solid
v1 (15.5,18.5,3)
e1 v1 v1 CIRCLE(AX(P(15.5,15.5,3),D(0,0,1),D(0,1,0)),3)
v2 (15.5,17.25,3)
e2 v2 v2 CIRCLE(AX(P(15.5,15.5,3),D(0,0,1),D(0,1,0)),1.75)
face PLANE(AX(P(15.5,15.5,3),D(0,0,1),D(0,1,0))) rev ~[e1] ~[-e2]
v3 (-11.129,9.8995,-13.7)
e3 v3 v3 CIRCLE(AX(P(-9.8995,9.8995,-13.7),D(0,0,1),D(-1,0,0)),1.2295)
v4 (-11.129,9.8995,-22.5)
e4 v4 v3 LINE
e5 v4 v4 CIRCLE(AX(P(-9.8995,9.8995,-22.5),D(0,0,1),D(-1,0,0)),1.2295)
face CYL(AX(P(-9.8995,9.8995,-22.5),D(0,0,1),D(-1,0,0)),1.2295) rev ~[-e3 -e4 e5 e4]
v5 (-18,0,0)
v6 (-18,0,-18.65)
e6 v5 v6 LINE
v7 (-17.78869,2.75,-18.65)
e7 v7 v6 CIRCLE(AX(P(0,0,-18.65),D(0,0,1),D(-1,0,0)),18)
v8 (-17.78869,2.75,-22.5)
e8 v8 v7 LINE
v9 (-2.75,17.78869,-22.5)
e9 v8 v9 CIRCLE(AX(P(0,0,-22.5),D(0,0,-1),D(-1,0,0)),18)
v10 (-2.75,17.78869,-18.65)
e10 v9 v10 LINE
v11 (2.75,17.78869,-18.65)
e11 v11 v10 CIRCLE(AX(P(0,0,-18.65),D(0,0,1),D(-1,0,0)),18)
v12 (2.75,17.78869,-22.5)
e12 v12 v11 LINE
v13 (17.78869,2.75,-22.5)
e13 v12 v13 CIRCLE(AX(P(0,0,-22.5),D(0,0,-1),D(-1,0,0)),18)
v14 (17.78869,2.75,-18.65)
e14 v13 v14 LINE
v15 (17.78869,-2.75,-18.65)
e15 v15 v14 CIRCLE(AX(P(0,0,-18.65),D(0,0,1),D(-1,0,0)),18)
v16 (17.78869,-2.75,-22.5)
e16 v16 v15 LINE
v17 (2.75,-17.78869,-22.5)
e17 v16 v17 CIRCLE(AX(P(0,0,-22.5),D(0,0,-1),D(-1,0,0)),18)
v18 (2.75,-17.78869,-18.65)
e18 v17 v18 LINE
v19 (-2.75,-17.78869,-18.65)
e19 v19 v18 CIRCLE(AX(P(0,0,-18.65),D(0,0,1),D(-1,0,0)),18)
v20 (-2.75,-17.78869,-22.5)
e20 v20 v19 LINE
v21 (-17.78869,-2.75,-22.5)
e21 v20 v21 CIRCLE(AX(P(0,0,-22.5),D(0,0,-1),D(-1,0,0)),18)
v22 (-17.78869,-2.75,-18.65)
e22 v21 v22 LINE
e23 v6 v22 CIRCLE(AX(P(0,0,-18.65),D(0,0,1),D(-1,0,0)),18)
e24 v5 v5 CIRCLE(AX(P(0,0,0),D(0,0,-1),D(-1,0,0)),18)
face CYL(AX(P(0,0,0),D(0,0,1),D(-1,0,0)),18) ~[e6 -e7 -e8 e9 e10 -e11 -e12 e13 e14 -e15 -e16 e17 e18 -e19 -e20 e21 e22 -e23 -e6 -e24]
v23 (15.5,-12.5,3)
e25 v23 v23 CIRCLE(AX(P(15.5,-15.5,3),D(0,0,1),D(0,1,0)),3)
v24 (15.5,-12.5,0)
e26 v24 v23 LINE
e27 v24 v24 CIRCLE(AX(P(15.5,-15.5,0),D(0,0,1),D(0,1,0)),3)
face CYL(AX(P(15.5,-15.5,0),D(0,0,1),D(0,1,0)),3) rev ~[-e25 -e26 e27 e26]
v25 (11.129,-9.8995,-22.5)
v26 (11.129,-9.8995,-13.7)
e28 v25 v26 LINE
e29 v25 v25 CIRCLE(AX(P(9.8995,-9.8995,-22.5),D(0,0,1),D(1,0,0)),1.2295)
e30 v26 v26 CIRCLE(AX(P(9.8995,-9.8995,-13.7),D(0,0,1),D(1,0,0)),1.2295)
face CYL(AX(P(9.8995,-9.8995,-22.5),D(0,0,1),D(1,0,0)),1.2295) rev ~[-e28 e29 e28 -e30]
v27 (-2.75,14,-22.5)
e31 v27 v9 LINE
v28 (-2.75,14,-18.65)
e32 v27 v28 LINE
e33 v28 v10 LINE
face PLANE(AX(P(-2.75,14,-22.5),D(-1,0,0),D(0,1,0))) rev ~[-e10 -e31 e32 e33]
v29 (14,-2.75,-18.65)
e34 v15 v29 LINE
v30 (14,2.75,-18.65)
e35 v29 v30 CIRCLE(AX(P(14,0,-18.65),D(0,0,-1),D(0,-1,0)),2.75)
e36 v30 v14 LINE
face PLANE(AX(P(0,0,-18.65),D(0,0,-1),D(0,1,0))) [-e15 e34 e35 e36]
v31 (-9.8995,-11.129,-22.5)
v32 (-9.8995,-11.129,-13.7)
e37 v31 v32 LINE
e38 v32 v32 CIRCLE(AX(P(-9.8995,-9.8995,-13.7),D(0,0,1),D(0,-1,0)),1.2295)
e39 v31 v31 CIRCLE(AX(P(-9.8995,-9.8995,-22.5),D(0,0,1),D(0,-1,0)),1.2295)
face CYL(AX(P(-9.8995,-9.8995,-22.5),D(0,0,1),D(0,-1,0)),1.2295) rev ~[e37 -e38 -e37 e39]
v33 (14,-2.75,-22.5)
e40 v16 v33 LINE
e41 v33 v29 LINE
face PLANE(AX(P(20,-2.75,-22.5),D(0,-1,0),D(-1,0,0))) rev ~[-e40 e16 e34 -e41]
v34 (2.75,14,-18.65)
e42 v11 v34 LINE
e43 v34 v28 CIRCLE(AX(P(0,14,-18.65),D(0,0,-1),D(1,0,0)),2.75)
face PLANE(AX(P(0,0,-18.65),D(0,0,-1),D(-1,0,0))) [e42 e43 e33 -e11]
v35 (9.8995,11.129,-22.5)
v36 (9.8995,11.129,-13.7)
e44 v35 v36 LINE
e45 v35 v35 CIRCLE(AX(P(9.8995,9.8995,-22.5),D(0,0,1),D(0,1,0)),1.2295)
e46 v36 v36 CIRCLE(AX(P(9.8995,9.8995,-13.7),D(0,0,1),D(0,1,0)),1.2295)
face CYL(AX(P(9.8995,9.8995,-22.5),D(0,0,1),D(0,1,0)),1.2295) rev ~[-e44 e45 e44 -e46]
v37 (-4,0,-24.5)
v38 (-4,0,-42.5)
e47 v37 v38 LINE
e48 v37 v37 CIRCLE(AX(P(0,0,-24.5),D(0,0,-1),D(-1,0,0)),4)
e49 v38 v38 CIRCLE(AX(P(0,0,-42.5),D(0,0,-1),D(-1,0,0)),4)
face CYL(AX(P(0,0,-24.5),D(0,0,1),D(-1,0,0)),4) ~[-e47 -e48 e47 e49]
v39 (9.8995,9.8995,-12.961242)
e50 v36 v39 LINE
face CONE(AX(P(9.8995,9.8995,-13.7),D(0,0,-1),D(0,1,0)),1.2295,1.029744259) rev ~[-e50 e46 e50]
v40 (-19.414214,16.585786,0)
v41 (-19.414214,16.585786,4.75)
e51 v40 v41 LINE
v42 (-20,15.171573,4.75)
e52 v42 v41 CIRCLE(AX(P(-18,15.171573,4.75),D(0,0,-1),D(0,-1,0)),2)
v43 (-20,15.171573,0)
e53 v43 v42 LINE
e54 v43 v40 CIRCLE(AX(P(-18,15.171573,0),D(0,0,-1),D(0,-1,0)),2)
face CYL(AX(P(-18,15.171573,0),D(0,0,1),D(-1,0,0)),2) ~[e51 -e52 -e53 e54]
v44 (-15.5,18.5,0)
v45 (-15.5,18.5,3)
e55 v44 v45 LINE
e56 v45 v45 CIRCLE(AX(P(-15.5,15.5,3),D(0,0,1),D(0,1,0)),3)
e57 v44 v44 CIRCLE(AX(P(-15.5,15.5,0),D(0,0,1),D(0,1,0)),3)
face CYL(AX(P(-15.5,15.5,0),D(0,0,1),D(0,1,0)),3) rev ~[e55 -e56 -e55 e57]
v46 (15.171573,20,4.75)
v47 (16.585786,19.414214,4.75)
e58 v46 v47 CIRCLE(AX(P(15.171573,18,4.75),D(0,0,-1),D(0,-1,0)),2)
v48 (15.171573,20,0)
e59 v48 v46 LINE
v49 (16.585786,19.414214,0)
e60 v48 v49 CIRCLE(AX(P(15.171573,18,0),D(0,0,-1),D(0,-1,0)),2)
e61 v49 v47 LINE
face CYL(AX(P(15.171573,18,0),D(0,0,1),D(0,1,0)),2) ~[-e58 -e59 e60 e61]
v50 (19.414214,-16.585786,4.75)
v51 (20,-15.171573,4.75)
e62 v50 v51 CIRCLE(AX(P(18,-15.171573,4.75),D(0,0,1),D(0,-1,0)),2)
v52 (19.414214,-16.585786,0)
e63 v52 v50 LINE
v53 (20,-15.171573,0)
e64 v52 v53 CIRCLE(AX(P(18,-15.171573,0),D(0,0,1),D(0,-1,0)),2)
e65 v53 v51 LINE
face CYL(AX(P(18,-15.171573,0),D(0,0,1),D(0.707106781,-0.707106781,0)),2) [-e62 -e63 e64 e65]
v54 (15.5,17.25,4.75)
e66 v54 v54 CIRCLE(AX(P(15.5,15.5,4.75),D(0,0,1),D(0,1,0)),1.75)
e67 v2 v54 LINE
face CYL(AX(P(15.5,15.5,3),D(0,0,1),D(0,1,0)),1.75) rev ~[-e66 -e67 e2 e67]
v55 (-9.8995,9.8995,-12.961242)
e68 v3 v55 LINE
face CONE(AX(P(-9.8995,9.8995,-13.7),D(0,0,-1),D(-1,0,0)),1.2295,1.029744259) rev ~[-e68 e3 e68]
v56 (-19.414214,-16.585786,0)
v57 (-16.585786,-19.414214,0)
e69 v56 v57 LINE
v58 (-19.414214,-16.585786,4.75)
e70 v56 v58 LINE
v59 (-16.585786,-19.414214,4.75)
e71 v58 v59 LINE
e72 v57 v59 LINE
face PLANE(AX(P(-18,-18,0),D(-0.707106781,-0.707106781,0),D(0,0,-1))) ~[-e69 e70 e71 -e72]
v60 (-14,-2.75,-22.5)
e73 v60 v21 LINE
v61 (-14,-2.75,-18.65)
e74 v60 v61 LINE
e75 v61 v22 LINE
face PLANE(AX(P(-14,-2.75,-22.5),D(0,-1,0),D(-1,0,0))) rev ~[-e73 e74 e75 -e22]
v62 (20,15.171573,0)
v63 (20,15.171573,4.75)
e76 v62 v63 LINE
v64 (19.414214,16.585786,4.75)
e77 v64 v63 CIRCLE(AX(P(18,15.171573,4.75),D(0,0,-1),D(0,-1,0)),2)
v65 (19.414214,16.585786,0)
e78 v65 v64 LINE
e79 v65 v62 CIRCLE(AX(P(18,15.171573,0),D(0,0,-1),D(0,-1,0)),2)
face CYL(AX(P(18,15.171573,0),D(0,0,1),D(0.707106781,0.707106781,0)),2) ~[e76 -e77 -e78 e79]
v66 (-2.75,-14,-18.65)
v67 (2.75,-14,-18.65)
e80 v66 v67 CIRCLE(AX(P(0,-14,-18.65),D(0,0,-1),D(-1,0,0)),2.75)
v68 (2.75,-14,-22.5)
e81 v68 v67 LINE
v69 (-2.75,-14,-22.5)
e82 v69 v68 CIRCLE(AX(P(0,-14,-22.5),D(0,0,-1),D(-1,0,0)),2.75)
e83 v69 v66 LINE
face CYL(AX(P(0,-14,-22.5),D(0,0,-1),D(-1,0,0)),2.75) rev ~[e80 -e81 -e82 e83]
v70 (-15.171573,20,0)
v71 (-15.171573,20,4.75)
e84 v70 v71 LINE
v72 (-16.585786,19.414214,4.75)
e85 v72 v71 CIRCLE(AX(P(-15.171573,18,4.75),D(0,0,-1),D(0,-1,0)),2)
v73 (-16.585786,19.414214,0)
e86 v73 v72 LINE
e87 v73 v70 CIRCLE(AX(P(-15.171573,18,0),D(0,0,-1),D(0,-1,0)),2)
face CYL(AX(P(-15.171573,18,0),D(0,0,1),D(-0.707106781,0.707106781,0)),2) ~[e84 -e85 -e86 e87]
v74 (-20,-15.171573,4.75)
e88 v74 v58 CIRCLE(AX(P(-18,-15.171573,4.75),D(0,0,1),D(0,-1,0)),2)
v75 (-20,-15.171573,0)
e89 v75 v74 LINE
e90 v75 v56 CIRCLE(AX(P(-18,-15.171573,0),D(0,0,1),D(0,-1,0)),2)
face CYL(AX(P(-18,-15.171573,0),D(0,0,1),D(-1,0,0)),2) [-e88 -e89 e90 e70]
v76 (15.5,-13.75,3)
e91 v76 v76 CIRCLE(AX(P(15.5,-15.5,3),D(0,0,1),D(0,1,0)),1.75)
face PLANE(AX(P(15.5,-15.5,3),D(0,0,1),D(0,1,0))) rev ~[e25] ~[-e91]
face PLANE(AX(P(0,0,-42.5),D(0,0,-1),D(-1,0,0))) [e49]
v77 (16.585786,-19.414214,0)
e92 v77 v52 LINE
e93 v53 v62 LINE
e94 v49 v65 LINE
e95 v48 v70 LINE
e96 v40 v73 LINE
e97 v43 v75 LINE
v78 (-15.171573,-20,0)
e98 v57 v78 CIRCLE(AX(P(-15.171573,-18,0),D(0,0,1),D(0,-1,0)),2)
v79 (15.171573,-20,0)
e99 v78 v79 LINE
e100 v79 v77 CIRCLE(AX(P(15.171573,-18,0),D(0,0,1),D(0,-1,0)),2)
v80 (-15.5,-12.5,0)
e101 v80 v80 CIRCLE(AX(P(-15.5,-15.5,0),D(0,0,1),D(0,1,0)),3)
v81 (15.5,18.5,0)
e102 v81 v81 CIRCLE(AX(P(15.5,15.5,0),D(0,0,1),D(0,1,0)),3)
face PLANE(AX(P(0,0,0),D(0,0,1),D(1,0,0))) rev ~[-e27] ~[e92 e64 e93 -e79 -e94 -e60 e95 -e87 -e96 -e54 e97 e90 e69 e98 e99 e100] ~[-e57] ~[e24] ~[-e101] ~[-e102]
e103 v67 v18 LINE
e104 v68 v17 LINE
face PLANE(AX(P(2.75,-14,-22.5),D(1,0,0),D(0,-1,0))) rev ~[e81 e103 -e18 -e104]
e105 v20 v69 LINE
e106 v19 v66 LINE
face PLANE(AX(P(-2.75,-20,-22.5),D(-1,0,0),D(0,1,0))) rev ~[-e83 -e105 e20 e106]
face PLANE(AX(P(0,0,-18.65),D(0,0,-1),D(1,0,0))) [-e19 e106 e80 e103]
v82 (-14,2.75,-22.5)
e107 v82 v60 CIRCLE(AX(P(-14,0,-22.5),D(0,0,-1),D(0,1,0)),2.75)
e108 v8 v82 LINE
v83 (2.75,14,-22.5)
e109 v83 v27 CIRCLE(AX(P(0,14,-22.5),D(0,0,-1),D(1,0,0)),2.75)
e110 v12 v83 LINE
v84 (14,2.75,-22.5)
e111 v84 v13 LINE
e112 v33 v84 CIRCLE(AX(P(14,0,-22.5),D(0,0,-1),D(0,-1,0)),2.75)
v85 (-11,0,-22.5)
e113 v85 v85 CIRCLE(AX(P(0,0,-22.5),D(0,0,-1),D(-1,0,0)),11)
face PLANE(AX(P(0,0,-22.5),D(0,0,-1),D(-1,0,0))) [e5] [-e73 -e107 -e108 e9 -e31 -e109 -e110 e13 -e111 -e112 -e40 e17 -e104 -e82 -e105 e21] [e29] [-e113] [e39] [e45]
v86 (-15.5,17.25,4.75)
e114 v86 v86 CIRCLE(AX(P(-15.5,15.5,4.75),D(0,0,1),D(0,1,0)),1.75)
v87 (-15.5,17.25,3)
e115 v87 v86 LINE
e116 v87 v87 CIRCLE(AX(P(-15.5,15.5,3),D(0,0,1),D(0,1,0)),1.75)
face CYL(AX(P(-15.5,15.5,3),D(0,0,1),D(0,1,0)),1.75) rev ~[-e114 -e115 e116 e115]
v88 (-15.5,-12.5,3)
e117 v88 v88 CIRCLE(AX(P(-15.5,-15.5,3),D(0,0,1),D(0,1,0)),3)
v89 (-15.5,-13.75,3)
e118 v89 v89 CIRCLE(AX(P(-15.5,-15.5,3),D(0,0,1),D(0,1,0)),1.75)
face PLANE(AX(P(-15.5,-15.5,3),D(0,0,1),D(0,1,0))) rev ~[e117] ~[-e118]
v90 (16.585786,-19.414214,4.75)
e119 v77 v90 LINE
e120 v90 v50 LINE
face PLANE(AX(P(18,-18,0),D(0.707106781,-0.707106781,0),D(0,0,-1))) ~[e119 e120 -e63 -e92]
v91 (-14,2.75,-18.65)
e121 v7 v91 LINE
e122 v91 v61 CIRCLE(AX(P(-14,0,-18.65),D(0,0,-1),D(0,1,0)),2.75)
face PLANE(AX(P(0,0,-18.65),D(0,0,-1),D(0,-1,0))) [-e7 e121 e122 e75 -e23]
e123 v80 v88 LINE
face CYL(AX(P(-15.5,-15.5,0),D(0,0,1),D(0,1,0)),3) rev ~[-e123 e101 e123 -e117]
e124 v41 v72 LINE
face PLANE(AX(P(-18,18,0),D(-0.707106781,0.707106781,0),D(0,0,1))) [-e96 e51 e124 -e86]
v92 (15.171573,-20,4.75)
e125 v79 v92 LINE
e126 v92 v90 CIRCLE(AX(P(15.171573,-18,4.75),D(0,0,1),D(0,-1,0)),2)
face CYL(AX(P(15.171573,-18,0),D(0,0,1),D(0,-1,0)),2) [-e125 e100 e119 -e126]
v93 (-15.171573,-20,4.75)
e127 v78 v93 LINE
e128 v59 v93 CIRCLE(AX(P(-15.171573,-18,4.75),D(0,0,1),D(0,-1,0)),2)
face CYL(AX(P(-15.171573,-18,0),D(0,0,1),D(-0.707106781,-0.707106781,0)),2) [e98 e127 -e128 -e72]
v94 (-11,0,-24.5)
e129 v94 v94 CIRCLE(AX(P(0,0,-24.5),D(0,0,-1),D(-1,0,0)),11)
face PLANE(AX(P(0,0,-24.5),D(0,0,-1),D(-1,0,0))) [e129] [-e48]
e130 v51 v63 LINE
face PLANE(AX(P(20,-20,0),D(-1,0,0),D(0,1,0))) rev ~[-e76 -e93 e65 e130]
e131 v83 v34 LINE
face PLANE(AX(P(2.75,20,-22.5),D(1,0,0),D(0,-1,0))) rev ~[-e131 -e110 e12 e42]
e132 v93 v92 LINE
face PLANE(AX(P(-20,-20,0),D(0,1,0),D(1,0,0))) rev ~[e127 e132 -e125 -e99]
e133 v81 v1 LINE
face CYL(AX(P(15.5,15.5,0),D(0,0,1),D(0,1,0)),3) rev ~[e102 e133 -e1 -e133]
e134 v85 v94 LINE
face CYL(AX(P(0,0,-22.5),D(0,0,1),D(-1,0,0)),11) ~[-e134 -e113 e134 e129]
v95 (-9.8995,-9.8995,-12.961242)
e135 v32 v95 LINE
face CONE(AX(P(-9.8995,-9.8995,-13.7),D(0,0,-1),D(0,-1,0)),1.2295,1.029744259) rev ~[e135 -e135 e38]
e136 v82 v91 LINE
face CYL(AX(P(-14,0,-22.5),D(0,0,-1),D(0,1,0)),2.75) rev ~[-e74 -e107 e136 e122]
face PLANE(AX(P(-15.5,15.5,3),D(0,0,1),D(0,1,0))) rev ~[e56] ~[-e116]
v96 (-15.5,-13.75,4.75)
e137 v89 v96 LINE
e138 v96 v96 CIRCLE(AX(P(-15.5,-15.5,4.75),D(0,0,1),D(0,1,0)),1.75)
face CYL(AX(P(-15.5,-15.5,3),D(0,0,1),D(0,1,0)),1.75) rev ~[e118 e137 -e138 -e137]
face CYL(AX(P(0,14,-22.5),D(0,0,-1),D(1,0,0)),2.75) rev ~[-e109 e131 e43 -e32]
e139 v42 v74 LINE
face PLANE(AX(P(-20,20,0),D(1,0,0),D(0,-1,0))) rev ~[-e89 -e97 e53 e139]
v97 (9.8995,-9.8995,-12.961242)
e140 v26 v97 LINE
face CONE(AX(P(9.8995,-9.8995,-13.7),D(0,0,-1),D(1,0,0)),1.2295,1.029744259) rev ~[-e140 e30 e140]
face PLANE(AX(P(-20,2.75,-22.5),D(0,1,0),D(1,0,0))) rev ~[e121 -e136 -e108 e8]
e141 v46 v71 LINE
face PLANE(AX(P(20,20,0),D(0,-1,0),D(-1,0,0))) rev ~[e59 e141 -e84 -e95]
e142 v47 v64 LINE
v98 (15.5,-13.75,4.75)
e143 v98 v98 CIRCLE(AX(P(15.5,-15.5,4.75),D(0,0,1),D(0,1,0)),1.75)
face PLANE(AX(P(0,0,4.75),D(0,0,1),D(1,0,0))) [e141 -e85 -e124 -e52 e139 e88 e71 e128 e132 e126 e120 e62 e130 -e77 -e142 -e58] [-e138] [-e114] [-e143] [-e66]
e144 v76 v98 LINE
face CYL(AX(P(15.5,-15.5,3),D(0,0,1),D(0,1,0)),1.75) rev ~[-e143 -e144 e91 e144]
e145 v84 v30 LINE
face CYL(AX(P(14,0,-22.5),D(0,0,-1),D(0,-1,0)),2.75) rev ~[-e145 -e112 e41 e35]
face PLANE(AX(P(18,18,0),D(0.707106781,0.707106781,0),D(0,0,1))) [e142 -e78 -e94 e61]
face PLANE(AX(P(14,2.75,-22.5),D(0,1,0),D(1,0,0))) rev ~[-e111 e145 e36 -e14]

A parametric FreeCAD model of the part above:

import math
import FreeCAD as App
import Part
import Sketcher

V = App.Vector
Q = App.Units.Quantity


def edges_at(feature, points):
    """Names of the edges that pass closest to the given points."""
    edges = feature.Shape.Edges
    near = lambda p: min(range(len(edges)), key=lambda i: edges[i].distToShape(Part.Vertex(*p))[0])
    return sorted({f"Edge{near(p) + 1}" for p in points})


def add_polygon(sketch, points):
    """Adds a closed chain of lines whose ends are joined by coincident constraints."""
    first, n = sketch.GeometryCount, len(points)
    for a, b in zip(points, points[1:] + points[:1]):
        sketch.addGeometry(Part.LineSegment(App.Vector(*a, 0), App.Vector(*b, 0)), False)
    for i in range(n):
        sketch.addConstraint(Sketcher.Constraint("Coincident", first + i, 2, first + (i + 1) % n, 1))

doc = App.newDocument("Part")
body = doc.addObject("PartDesign::Body", "Body")

sketch1 = body.newObject("Sketcher::SketchObject", "Sketch")
sketch1.AttachmentSupport = (doc.getObject("XY_Plane"), [""])
sketch1.MapMode = "FlatFace"
add_polygon(sketch1, [(-20, 20), (-20, -20), (20, -20), (20, 20)])
sketch1.addConstraint([
    Sketcher.Constraint("Vertical", 0),
    Sketcher.Constraint("Horizontal", 1),
    Sketcher.Constraint("Vertical", 2),
    Sketcher.Constraint("Horizontal", 3),
    Sketcher.Constraint("Symmetric", 0, 2, 2, 2, -1, 1),
    Sketcher.Constraint("Equal", 3, 0),
    Sketcher.Constraint("DistanceX", 1, 1, 1, 2, Q("40 mm")),
])
pad1 = body.newObject("PartDesign::Pad", "Pad")
pad1.Profile = sketch1
pad1.Length = 4.75

sketch2 = body.newObject("Sketcher::SketchObject", "Sketch001")
sketch2.AttachmentSupport = (doc.getObject("XY_Plane"), [""])
sketch2.MapMode = "FlatFace"
sketch2.addGeometry(Part.Circle(V(0, 0, 0), V(0, 0, 1), 18), False)
sketch2.addConstraint([
    Sketcher.Constraint("Coincident", 0, 3, -1, 1),
    Sketcher.Constraint("Diameter", 0, Q("36 mm")),
])
pad2 = body.newObject("PartDesign::Pad", "Pad001")
pad2.Profile = sketch2
pad2.Length = 22.5
pad2.Reversed = True

sketch3 = body.newObject("Sketcher::SketchObject", "Sketch002")
sketch3.AttachmentSupport = (doc.getObject("XY_Plane"), [""])
sketch3.MapMode = "FlatFace"
sketch3.AttachmentOffset = App.Placement(V(0, 0, -22.5), App.Rotation())
sketch3.addGeometry(Part.Circle(V(0, 0, 0), V(0, 0, 1), 11), False)
sketch3.addConstraint([
    Sketcher.Constraint("Coincident", 0, 3, -1, 1),
    Sketcher.Constraint("Diameter", 0, Q("22 mm")),
])
pad3 = body.newObject("PartDesign::Pad", "Pad002")
pad3.Profile = sketch3
pad3.Length = 2
pad3.Reversed = True

sketch4 = body.newObject("Sketcher::SketchObject", "Sketch003")
sketch4.AttachmentSupport = (doc.getObject("XY_Plane"), [""])
sketch4.MapMode = "FlatFace"
sketch4.AttachmentOffset = App.Placement(V(0, 0, -24.5), App.Rotation())
sketch4.addGeometry(Part.Circle(V(0, 0, 0), V(0, 0, 1), 4), False)
sketch4.addConstraint([
    Sketcher.Constraint("Coincident", 0, 3, -1, 1),
    Sketcher.Constraint("Diameter", 0, Q("8 mm")),
])
pad4 = body.newObject("PartDesign::Pad", "Pad003")
pad4.Profile = sketch4
pad4.Length = 18
pad4.Reversed = True

sketch5 = body.newObject("Sketcher::SketchObject", "Sketch004")
sketch5.AttachmentSupport = (doc.getObject("XY_Plane"), [""])
sketch5.MapMode = "FlatFace"
sketch5.AttachmentOffset = App.Placement(V(0, 0, -22.5), App.Rotation())
sketch5.addGeometry([
    Part.ArcOfCircle(Part.Circle(V(0, 14, 0), V(0, 0, 1), 2.8), math.radians(180), math.radians(360)),
    Part.LineSegment(V(-2.8, 14, 0), V(-2.8, 20, 0)),
    Part.LineSegment(V(-2.8, 20, 0), V(2.8, 20, 0)),
    Part.LineSegment(V(2.8, 20, 0), V(2.8, 14, 0)),
], False)
sketch5.addConstraint([
    Sketcher.Constraint("Tangent", 0, 1, 1, 1),
    Sketcher.Constraint("Coincident", 1, 2, 2, 1),
    Sketcher.Constraint("Coincident", 2, 2, 3, 1),
    Sketcher.Constraint("Tangent", 3, 2, 0, 2),
    Sketcher.Constraint("Vertical", 1),
    Sketcher.Constraint("Horizontal", 2),
    Sketcher.Constraint("Vertical", 3),
    Sketcher.Constraint("PointOnObject", 0, 3, -2),
    Sketcher.Constraint("Radius", 0, Q("2.75 mm")),
    Sketcher.Constraint("DistanceY", 1, 1, 1, 2, Q("6 mm")),
    Sketcher.Constraint("DistanceY", -1, 1, 0, 3, Q("14 mm")),
])
pocket1 = body.newObject("PartDesign::Pocket", "Pocket")
pocket1.Profile = sketch5
pocket1.Length = 3.85
pocket1.Reversed = True
doc.recompute()

polarpattern = body.newObject("PartDesign::PolarPattern", "PolarPattern")
polarpattern.Originals = [pocket1]
polarpattern.Axis = (doc.getObject("Z_Axis"), [""])
polarpattern.Angle = 360
polarpattern.Occurrences = 4
body.Tip = polarpattern

sketch6 = body.newObject("Sketcher::SketchObject", "Sketch005")
sketch6.AttachmentSupport = (doc.getObject("XY_Plane"), [""])
sketch6.MapMode = "FlatFace"
sketch6.AttachmentOffset = App.Placement(V(0, 0, -22.5), App.Rotation())
sketch6.addGeometry(Part.Circle(V(9.9, 9.9, 0), V(0, 0, 1), 1.2), False)
sketch6.addConstraint([
    Sketcher.Constraint("Diameter", 0, Q("2.459 mm")),
    Sketcher.Constraint("DistanceX", -1, 1, 0, 3, Q("9.8995 mm")),
    Sketcher.Constraint("DistanceY", -1, 1, 0, 3, Q("9.8995 mm")),
])
doc.recompute()
hole = body.newObject("PartDesign::Hole", "Hole")
hole.Profile = sketch6
hole.ThreadType = "None"
hole.Diameter = 2.459
hole.DepthType = "Dimension"
hole.Depth = 8.8
hole.DrillPoint = "Angled"
hole.DrillPointAngle = 118
hole.Reversed = True
doc.recompute()

polarpattern2 = body.newObject("PartDesign::PolarPattern", "PolarPattern001")
polarpattern2.Originals = [hole]
polarpattern2.Axis = (doc.getObject("Z_Axis"), [""])
polarpattern2.Angle = 360
polarpattern2.Occurrences = 4
body.Tip = polarpattern2

sketch7 = body.newObject("Sketcher::SketchObject", "Sketch006")
sketch7.AttachmentSupport = (doc.getObject("XY_Plane"), [""])
sketch7.MapMode = "FlatFace"
sketch7.addGeometry([
    Part.Circle(V(-15.5, 15.5, 0), V(0, 0, 1), 1.8),
    Part.Circle(V(-15.5, -15.5, 0), V(0, 0, 1), 1.8),
    Part.Circle(V(15.5, -15.5, 0), V(0, 0, 1), 1.8),
    Part.Circle(V(15.5, 15.5, 0), V(0, 0, 1), 1.8),
], False)
sketch7.addConstraint([
    Sketcher.Constraint("Equal", 0, 1),
    Sketcher.Constraint("Equal", 1, 2),
    Sketcher.Constraint("Equal", 2, 3),
    Sketcher.Constraint("Symmetric", 0, 3, 2, 3, -1, 1),
    Sketcher.Constraint("Symmetric", 1, 3, 3, 3, -1, 1),
    Sketcher.Constraint("Symmetric", 1, 3, 2, 3, -2),
    Sketcher.Constraint("Diameter", 0, Q("3.5 mm")),
    Sketcher.Constraint("DistanceY", 1, 3, 0, 3, Q("31 mm")),
    Sketcher.Constraint("DistanceX", 1, 3, 2, 3, Q("31 mm")),
])
doc.recompute()
hole2 = body.newObject("PartDesign::Hole", "Hole001")
hole2.Profile = sketch7
hole2.ThreadType = "None"
hole2.Diameter = 3.5
hole2.DepthType = "ThroughAll"
hole2.HoleCutType = "Counterbore"
hole2.HoleCutDiameter = 6
hole2.HoleCutDepth = 3
hole2.Reversed = True
doc.recompute()

chamfer = body.newObject("PartDesign::Chamfer", "Chamfer")
chamfer.Base = (hole2, edges_at(hole2, [
    (-20, -20, 2.375),
    (20, -20, 2.375),
    (20, 20, 2.375),
    (-20, 20, 2.375),
]))
chamfer.Size = 4
doc.recompute()

fillet = body.newObject("PartDesign::Fillet", "Fillet")
fillet.Base = (chamfer, edges_at(chamfer, [
    (-16, -20, 2.375),
    (16, -20, 2.375),
    (20, -16, 2.375),
    (20, 16, 2.375),
    (16, 20, 2.375),
    (-16, 20, 2.375),
    (-20, 16, 2.375),
    (-20, -16, 2.375),
]))
fillet.Radius = 2

doc.recompute()
